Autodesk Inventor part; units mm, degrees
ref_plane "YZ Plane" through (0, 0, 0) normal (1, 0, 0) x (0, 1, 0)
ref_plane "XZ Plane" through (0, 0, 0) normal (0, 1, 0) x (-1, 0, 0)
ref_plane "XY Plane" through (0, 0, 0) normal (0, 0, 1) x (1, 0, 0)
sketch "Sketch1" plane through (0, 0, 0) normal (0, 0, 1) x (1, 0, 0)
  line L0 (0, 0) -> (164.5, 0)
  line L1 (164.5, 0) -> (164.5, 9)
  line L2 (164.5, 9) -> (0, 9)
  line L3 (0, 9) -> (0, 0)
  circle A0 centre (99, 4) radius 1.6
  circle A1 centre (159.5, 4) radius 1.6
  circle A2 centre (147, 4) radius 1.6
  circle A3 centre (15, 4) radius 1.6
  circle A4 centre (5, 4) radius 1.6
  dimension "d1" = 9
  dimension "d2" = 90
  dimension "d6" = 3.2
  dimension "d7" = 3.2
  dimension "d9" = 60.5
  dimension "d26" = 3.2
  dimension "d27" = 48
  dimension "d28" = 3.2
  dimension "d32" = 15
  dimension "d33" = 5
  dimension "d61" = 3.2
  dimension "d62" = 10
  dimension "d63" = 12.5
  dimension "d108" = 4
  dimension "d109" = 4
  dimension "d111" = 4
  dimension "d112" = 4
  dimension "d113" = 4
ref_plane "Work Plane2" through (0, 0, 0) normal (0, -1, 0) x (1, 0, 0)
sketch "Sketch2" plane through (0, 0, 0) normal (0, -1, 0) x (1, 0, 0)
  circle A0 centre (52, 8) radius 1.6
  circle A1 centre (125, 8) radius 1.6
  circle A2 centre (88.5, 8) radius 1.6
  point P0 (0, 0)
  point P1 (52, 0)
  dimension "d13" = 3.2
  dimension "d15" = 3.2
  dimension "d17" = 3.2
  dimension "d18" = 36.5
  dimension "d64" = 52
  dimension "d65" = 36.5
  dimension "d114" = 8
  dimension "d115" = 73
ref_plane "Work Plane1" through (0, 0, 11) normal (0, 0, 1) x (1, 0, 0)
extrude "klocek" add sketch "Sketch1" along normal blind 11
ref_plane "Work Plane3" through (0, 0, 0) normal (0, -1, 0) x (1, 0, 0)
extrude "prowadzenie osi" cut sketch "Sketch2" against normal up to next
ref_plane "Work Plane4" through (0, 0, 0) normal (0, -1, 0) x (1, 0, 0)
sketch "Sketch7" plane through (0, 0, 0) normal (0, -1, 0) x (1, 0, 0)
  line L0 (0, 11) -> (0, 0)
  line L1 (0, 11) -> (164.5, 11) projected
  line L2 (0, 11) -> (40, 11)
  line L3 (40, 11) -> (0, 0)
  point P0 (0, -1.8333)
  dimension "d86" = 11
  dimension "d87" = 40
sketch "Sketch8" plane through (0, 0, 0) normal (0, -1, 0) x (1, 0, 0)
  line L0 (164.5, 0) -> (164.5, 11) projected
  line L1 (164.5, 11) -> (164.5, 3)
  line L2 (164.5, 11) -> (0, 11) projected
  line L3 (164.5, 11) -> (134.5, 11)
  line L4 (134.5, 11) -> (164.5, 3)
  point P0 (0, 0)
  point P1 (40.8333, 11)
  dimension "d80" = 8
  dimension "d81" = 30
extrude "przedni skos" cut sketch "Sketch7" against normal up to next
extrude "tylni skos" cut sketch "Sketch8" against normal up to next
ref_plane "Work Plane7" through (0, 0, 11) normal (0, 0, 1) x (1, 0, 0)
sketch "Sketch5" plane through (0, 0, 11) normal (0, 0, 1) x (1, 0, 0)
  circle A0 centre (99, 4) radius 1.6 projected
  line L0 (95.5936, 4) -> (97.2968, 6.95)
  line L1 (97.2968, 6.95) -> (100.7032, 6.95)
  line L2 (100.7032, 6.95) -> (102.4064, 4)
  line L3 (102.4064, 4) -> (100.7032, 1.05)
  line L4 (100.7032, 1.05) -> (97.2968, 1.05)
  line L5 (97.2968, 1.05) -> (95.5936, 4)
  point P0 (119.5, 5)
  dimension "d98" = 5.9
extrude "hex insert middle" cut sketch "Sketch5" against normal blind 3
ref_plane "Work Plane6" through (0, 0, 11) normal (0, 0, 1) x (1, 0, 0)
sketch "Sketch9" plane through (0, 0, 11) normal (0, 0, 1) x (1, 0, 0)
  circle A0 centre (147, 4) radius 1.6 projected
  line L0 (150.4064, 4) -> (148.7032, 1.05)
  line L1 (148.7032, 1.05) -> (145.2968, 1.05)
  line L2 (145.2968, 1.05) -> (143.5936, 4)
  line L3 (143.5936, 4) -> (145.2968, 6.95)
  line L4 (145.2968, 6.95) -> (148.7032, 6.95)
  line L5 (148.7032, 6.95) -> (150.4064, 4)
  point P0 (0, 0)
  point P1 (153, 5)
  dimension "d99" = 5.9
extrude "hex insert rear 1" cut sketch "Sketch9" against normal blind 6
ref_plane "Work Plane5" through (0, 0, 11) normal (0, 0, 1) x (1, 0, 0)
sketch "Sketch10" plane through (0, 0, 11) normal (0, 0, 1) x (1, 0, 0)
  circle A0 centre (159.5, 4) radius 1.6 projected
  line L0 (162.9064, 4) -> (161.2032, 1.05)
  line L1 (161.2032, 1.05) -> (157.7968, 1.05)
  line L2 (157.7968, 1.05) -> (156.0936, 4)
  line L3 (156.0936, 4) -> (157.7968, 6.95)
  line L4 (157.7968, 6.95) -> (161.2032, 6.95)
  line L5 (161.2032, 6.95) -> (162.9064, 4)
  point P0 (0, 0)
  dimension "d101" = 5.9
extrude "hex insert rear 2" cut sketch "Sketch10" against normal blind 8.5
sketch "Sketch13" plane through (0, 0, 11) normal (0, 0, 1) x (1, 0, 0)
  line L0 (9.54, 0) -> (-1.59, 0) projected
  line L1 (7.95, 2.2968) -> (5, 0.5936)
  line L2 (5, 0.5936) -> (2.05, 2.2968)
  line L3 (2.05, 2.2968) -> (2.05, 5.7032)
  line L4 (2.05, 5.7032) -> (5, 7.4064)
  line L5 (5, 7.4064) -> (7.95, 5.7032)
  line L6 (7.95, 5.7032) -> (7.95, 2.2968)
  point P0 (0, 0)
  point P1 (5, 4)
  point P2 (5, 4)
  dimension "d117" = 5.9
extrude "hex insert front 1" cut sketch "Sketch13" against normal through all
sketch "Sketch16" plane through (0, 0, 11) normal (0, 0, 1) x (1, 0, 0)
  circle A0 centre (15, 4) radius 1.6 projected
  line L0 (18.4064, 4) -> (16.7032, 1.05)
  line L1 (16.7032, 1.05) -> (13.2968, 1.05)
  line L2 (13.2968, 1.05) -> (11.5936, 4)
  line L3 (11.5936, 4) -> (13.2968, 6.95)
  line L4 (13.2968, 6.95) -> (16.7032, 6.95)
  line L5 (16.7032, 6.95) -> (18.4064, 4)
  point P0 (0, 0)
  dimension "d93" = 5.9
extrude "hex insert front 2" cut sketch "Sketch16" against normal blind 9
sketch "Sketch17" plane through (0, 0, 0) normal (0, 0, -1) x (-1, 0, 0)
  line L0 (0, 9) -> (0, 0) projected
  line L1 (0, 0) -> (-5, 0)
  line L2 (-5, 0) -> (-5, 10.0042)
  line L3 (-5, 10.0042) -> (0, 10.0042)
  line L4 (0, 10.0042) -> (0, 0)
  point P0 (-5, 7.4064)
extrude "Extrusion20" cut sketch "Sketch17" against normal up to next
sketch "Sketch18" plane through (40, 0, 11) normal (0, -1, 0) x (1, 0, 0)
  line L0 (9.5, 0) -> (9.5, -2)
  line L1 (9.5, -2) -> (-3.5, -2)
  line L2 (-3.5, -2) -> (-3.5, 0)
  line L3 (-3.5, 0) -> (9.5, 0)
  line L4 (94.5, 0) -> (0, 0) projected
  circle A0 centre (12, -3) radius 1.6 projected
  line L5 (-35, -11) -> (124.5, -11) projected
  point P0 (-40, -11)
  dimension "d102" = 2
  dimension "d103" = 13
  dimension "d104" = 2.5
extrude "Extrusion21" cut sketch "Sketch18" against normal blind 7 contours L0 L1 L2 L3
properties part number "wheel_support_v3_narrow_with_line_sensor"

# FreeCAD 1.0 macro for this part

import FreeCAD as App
import Part
import Sketcher
Q = App.Units.Quantity


def add_polygon(sketch, points):
    """Adds a closed chain of lines whose ends are joined by coincident constraints."""
    first, n = sketch.GeometryCount, len(points)
    for a, b in zip(points, points[1:] + points[:1]):
        sketch.addGeometry(Part.LineSegment(App.Vector(*a, 0), App.Vector(*b, 0)), False)
    for i in range(n):
        sketch.addConstraint(Sketcher.Constraint("Coincident", first + i, 2, first + (i + 1) % n, 1))

doc = App.newDocument("Part")
params = doc.addObject("Spreadsheet::Sheet", "Params")
for row, (alias, value) in enumerate([
    ("sketch1_diameter", "3.2 mm"),
    ("sketch1_height", "9 mm"),
    ("sketch1_width", "164.5 mm"),
    ("pad1_length", "11 mm"),
    ("sketch2_diameter", "3.2 mm"),
    ("sketch3_width", "40 mm"),
    ("sketch3_height", "11 mm"),
    ("sketch4_width", "30 mm"),
    ("sketch4_height", "8 mm"),
    ("sketch5_diameter", "3.2 mm"),
    ("pocket4_length", "3 mm"),
    ("sketch6_diameter", "3.2 mm"),
    ("pocket5_length", "6 mm"),
    ("sketch7_diameter", "3.2 mm"),
    ("pocket6_length", "8.5 mm"),
    ("sketch9_diameter", "3.2 mm"),
    ("pocket8_length", "9 mm"),
    ("sketch10_width", "5 mm"),
    ("pocket9_length", "1.375 mm"),
    ("sketch11_width", "13 mm"),
    ("sketch11_height", "2 mm"),
    ("pocket10_length", "7 mm"),
], start=1):
    params.set(f"A{row}", alias)
    params.set(f"B{row}", "=" + value)
    params.setAlias(f"B{row}", alias)

body = doc.addObject("PartDesign::Body", "Body")

sketch1 = body.newObject("Sketcher::SketchObject", "Sketch")
sketch1.AttachmentSupport = (doc.getObject("XY_Plane"), [""])
sketch1.MapMode = "FlatFace"
add_polygon(sketch1, [(0, 9), (0, 0), (164.5, 0), (164.5, 9)])
sketch1.addGeometry(Part.Circle(App.Vector(5, 4, 0), App.Vector(0, 0, 1), 1.6), False)
sketch1.addGeometry(Part.Circle(App.Vector(15, 4, 0), App.Vector(0, 0, 1), 1.6), False)
sketch1.addGeometry(Part.Circle(App.Vector(99, 4, 0), App.Vector(0, 0, 1), 1.6), False)
sketch1.addGeometry(Part.Circle(App.Vector(147, 4, 0), App.Vector(0, 0, 1), 1.6), False)
sketch1.addGeometry(Part.Circle(App.Vector(159.5, 4, 0), App.Vector(0, 0, 1), 1.6), False)
sketch1.addConstraint([
    Sketcher.Constraint("Vertical", 0),
    Sketcher.Constraint("Horizontal", 1),
    Sketcher.Constraint("Vertical", 2),
    Sketcher.Constraint("Horizontal", 3),
    Sketcher.Constraint("Coincident", 0, 2, -1, 1),
    Sketcher.Constraint("Equal", 4, 5),
    Sketcher.Constraint("Equal", 5, 6),
    Sketcher.Constraint("Equal", 6, 7),
    Sketcher.Constraint("Equal", 7, 8),
    Sketcher.Constraint("Horizontal", 4, 3, 5, 3),
    Sketcher.Constraint("Horizontal", 5, 3, 6, 3),
    Sketcher.Constraint("Horizontal", 6, 3, 7, 3),
    Sketcher.Constraint("Horizontal", 7, 3, 8, 3),
    Sketcher.Constraint("Diameter", 4, 3.2),
    Sketcher.Constraint("DistanceY", 0, 2, 0, 1, 9.0),
    Sketcher.Constraint("DistanceX", -1, 1, 4, 3, 5.0),
    Sketcher.Constraint("DistanceY", -1, 1, 4, 3, 4.0),
    Sketcher.Constraint("DistanceX", -1, 1, 5, 3, 15.0),
    Sketcher.Constraint("DistanceX", 6, 3, 7, 3, 48.0),
    Sketcher.Constraint("DistanceX", 8, 3, 1, 2, 5.0),
    Sketcher.Constraint("DistanceX", 7, 3, 8, 3, 12.5),
    Sketcher.Constraint("DistanceX", 1, 1, 1, 2, 164.5),
])
sketch1.setExpression("Constraints[17]", "Params.sketch1_diameter")
sketch1.setExpression("Constraints[18]", "Params.sketch1_height")
sketch1.setExpression("Constraints[25]", "Params.sketch1_width")
pad1 = body.newObject("PartDesign::Pad", "Pad")
pad1.Profile = sketch1
pad1.setExpression("Length", "Params.pad1_length")

sketch2 = body.newObject("Sketcher::SketchObject", "Sketch001")
sketch2.AttachmentSupport = (doc.getObject("XZ_Plane"), [""])
sketch2.MapMode = "FlatFace"
sketch2.addGeometry([
    Part.Circle(App.Vector(52, 8, 0), App.Vector(0, 0, 1), 1.6),
    Part.Circle(App.Vector(125, 8, 0), App.Vector(0, 0, 1), 1.6),
    Part.Circle(App.Vector(88.5, 8, 0), App.Vector(0, 0, 1), 1.6),
], False)
sketch2.addConstraint([
    Sketcher.Constraint("Equal", 0, 1),
    Sketcher.Constraint("Equal", 1, 2),
    Sketcher.Constraint("Horizontal", 0, 3, 1, 3),
    Sketcher.Constraint("Horizontal", 1, 3, 2, 3),
    Sketcher.Constraint("Diameter", 0, 3.2),
    Sketcher.Constraint("DistanceX", -1, 1, 0, 3, 52.0),
    Sketcher.Constraint("DistanceY", -1, 1, 0, 3, 8.0),
    Sketcher.Constraint("DistanceX", 0, 3, 1, 3, 73.0),
    Sketcher.Constraint("DistanceX", 0, 3, 2, 3, 36.5),
])
sketch2.setExpression("Constraints[4]", "Params.sketch2_diameter")
pocket1 = body.newObject("PartDesign::Pocket", "Pocket")
pocket1.Profile = sketch2
pocket1.Type = "UpToFirst"

sketch3 = body.newObject("Sketcher::SketchObject", "Sketch002")
sketch3.AttachmentSupport = (doc.getObject("XZ_Plane"), [""])
sketch3.MapMode = "FlatFace"
add_polygon(sketch3, [(40, 11), (0, 11), (0, 0)])
sketch3.addConstraint([
    Sketcher.Constraint("Horizontal", 0),
    Sketcher.Constraint("Vertical", 1),
    Sketcher.Constraint("Coincident", 1, 2, -1, 1),
    Sketcher.Constraint("DistanceX", 0, 2, 0, 1, 40.0),
    Sketcher.Constraint("DistanceY", 1, 2, 1, 1, 11.0),
])
sketch3.setExpression("Constraints[6]", "Params.sketch3_width")
sketch3.setExpression("Constraints[7]", "Params.sketch3_height")
pocket2 = body.newObject("PartDesign::Pocket", "Pocket001")
pocket2.Profile = sketch3
pocket2.Type = "UpToFirst"

sketch4 = body.newObject("Sketcher::SketchObject", "Sketch003")
sketch4.AttachmentSupport = (doc.getObject("XZ_Plane"), [""])
sketch4.MapMode = "FlatFace"
add_polygon(sketch4, [(134.5, 11), (164.5, 3), (164.5, 11)])
sketch4.addConstraint([
    Sketcher.Constraint("Vertical", 1),
    Sketcher.Constraint("Horizontal", 2),
    Sketcher.Constraint("DistanceX", 2, 2, 2, 1, 30.0),
    Sketcher.Constraint("DistanceY", 1, 1, 1, 2, 8.0),
    Sketcher.Constraint("DistanceY", -1, 1, 0, 2, 3.0),
    Sketcher.Constraint("DistanceX", -1, 1, 0, 2, 164.5),
])
sketch4.setExpression("Constraints[5]", "Params.sketch4_width")
sketch4.setExpression("Constraints[6]", "Params.sketch4_height")
pocket3 = body.newObject("PartDesign::Pocket", "Pocket002")
pocket3.Profile = sketch4
pocket3.Type = "UpToFirst"

sketch5 = body.newObject("Sketcher::SketchObject", "Sketch004")
sketch5.AttachmentSupport = (doc.getObject("XY_Plane"), [""])
sketch5.MapMode = "FlatFace"
sketch5.AttachmentOffset = App.Placement(App.Vector(0, 0, 11), App.Rotation())
add_polygon(sketch5, [(97.2968, 6.95), (95.5936, 4), (97.2968, 1.05), (100.7032, 1.05), (102.4064, 4), (100.7032, 6.95)])
sketch5.addGeometry(Part.Circle(App.Vector(99, 4, 0), App.Vector(0, 0, 1), 1.6), False)
sketch5.addConstraint([
    Sketcher.Constraint("Horizontal", 2),
    Sketcher.Constraint("Horizontal", 5),
    Sketcher.Constraint("Parallel", 0, 3),
    Sketcher.Constraint("Parallel", 1, 4),
    Sketcher.Constraint("Horizontal", 6, 3, 0, 2),
    Sketcher.Constraint("Horizontal", 0, 2, 3, 2),
    Sketcher.Constraint("Vertical", 2, 2, 4, 2),
    Sketcher.Constraint("Vertical", 1, 2, 5, 2),
    Sketcher.Constraint("Diameter", 6, 3.2),
    Sketcher.Constraint("DistanceY", 2, 2, 4, 2, 5.9),
    Sketcher.Constraint("Angle", 0, Q("-120.0002 deg")),
    Sketcher.Constraint("DistanceX", -1, 1, 6, 3, 99.0),
    Sketcher.Constraint("DistanceY", -1, 1, 6, 3, 4.0),
    Sketcher.Constraint("DistanceX", 2, 1, 2, 2, 3.4064),
    Sketcher.Constraint("DistanceX", -1, 1, 0, 2, 95.5936),
])
sketch5.setExpression("Constraints[14]", "Params.sketch5_diameter")
pocket4 = body.newObject("PartDesign::Pocket", "Pocket003")
pocket4.Profile = sketch5
pocket4.setExpression("Length", "Params.pocket4_length")

sketch6 = body.newObject("Sketcher::SketchObject", "Sketch005")
sketch6.AttachmentSupport = (doc.getObject("XY_Plane"), [""])
sketch6.MapMode = "FlatFace"
sketch6.AttachmentOffset = App.Placement(App.Vector(0, 0, 11), App.Rotation())
add_polygon(sketch6, [(148.7032, 1.05), (150.4064, 4), (148.7032, 6.95), (145.2968, 6.95), (143.5936, 4), (145.2968, 1.05)])
sketch6.addGeometry(Part.Circle(App.Vector(147, 4, 0), App.Vector(0, 0, 1), 1.6), False)
sketch6.addConstraint([
    Sketcher.Constraint("Horizontal", 2),
    Sketcher.Constraint("Horizontal", 5),
    Sketcher.Constraint("Parallel", 0, 3),
    Sketcher.Constraint("Parallel", 1, 4),
    Sketcher.Constraint("Horizontal", 6, 3, 0, 2),
    Sketcher.Constraint("Horizontal", 0, 2, 3, 2),
    Sketcher.Constraint("Vertical", 2, 2, 4, 2),
    Sketcher.Constraint("Vertical", 1, 2, 5, 2),
    Sketcher.Constraint("Diameter", 6, 3.2),
    Sketcher.Constraint("DistanceY", 4, 2, 2, 2, 5.9),
    Sketcher.Constraint("Angle", 0, Q("59.9998 deg")),
    Sketcher.Constraint("DistanceX", -1, 1, 6, 3, 147.0),
    Sketcher.Constraint("DistanceY", -1, 1, 6, 3, 4.0),
    Sketcher.Constraint("DistanceX", 2, 2, 2, 1, 3.4064),
    Sketcher.Constraint("DistanceX", -1, 1, 0, 2, 150.4064),
])
sketch6.setExpression("Constraints[14]", "Params.sketch6_diameter")
pocket5 = body.newObject("PartDesign::Pocket", "Pocket004")
pocket5.Profile = sketch6
pocket5.setExpression("Length", "Params.pocket5_length")

sketch7 = body.newObject("Sketcher::SketchObject", "Sketch006")
sketch7.AttachmentSupport = (doc.getObject("XY_Plane"), [""])
sketch7.MapMode = "FlatFace"
sketch7.AttachmentOffset = App.Placement(App.Vector(0, 0, 11), App.Rotation())
add_polygon(sketch7, [(161.2032, 1.05), (162.9064, 4), (161.2032, 6.95), (157.7968, 6.95), (156.0936, 4), (157.7968, 1.05)])
sketch7.addGeometry(Part.Circle(App.Vector(159.5, 4, 0), App.Vector(0, 0, 1), 1.6), False)
sketch7.addConstraint([
    Sketcher.Constraint("Horizontal", 2),
    Sketcher.Constraint("Horizontal", 5),
    Sketcher.Constraint("Parallel", 0, 3),
    Sketcher.Constraint("Parallel", 1, 4),
    Sketcher.Constraint("Horizontal", 6, 3, 0, 2),
    Sketcher.Constraint("Horizontal", 0, 2, 3, 2),
    Sketcher.Constraint("Vertical", 2, 2, 4, 2),
    Sketcher.Constraint("Vertical", 1, 2, 5, 2),
    Sketcher.Constraint("Diameter", 6, 3.2),
    Sketcher.Constraint("DistanceY", 4, 2, 2, 2, 5.9),
    Sketcher.Constraint("Angle", 0, Q("59.9998 deg")),
    Sketcher.Constraint("DistanceY", -1, 1, 6, 3, 4.0),
    Sketcher.Constraint("DistanceX", -1, 1, 6, 3, 159.5),
    Sketcher.Constraint("DistanceX", 2, 2, 2, 1, 3.4064),
    Sketcher.Constraint("DistanceX", -1, 1, 0, 2, 162.9064),
])
sketch7.setExpression("Constraints[14]", "Params.sketch7_diameter")
pocket6 = body.newObject("PartDesign::Pocket", "Pocket005")
pocket6.Profile = sketch7
pocket6.setExpression("Length", "Params.pocket6_length")

sketch8 = body.newObject("Sketcher::SketchObject", "Sketch007")
sketch8.AttachmentSupport = (doc.getObject("XY_Plane"), [""])
sketch8.MapMode = "FlatFace"
sketch8.AttachmentOffset = App.Placement(App.Vector(0, 0, 11), App.Rotation())
add_polygon(sketch8, [(5, 0.5936), (7.95, 2.2968), (7.95, 5.7032), (5, 7.4064), (2.05, 5.7032), (2.05, 2.2968)])
sketch8.addConstraint([
    Sketcher.Constraint("Vertical", 1),
    Sketcher.Constraint("Vertical", 4),
    Sketcher.Constraint("Parallel", 0, 3),
    Sketcher.Constraint("Parallel", 2, 5),
    Sketcher.Constraint("Horizontal", 1, 2, 3, 2),
    Sketcher.Constraint("Horizontal", 0, 2, 4, 2),
    Sketcher.Constraint("Vertical", 2, 2, 5, 2),
    Sketcher.Constraint("DistanceX", 3, 2, 1, 2, 5.9),
    Sketcher.Constraint("Angle", 0, Q("30.0002 deg")),
    Sketcher.Constraint("DistanceX", -1, 1, 2, 2, 5.0),
    Sketcher.Constraint("DistanceY", 1, 1, 1, 2, 3.4064),
    Sketcher.Constraint("DistanceY", -1, 1, 0, 2, 2.2968),
])
pocket7 = body.newObject("PartDesign::Pocket", "Pocket006")
pocket7.Profile = sketch8
pocket7.Type = "ThroughAll"

sketch9 = body.newObject("Sketcher::SketchObject", "Sketch008")
sketch9.AttachmentSupport = (doc.getObject("XY_Plane"), [""])
sketch9.MapMode = "FlatFace"
sketch9.AttachmentOffset = App.Placement(App.Vector(0, 0, 11), App.Rotation())
add_polygon(sketch9, [(16.7032, 1.05), (18.4064, 4), (16.7032, 6.95), (13.2968, 6.95), (11.5936, 4), (13.2968, 1.05)])
sketch9.addGeometry(Part.Circle(App.Vector(15, 4, 0), App.Vector(0, 0, 1), 1.6), False)
sketch9.addConstraint([
    Sketcher.Constraint("Horizontal", 2),
    Sketcher.Constraint("Horizontal", 5),
    Sketcher.Constraint("Parallel", 0, 3),
    Sketcher.Constraint("Parallel", 1, 4),
    Sketcher.Constraint("Horizontal", 6, 3, 0, 2),
    Sketcher.Constraint("Horizontal", 0, 2, 3, 2),
    Sketcher.Constraint("Vertical", 2, 2, 4, 2),
    Sketcher.Constraint("Vertical", 1, 2, 5, 2),
    Sketcher.Constraint("Diameter", 6, 3.2),
    Sketcher.Constraint("DistanceY", 4, 2, 2, 2, 5.9),
    Sketcher.Constraint("Angle", 0, Q("59.9998 deg")),
    Sketcher.Constraint("DistanceX", -1, 1, 6, 3, 15.0),
    Sketcher.Constraint("DistanceY", -1, 1, 6, 3, 4.0),
    Sketcher.Constraint("DistanceX", 2, 2, 2, 1, 3.4064),
    Sketcher.Constraint("DistanceX", -1, 1, 0, 2, 18.4064),
])
sketch9.setExpression("Constraints[14]", "Params.sketch9_diameter")
pocket8 = body.newObject("PartDesign::Pocket", "Pocket007")
pocket8.Profile = sketch9
pocket8.setExpression("Length", "Params.pocket8_length")

sketch10 = body.newObject("Sketcher::SketchObject", "Sketch009")
sketch10.AttachmentSupport = (doc.getObject("XY_Plane"), [""])
sketch10.MapMode = "FlatFace"
add_polygon(sketch10, [(0, 0), (0, 10.0042), (5, 10.0042), (5, 0)])
sketch10.addConstraint([
    Sketcher.Constraint("Vertical", 0),
    Sketcher.Constraint("Horizontal", 1),
    Sketcher.Constraint("Vertical", 2),
    Sketcher.Constraint("Horizontal", 3),
    Sketcher.Constraint("Coincident", 3, 2, -1, 1),
    Sketcher.Constraint("DistanceX", 1, 1, 1, 2, 5.0),
    Sketcher.Constraint("DistanceY", 0, 1, 0, 2, 10.0042),
])
sketch10.setExpression("Constraints[9]", "Params.sketch10_width")
pocket9 = body.newObject("PartDesign::Pocket", "Pocket008")
pocket9.Profile = sketch10
pocket9.setExpression("Length", "Params.pocket9_length")
pocket9.Reversed = True

sketch11 = body.newObject("Sketcher::SketchObject", "Sketch010")
sketch11.AttachmentSupport = (doc.getObject("XZ_Plane"), [""])
sketch11.MapMode = "FlatFace"
add_polygon(sketch11, [(49.5, 9), (49.5, 11), (36.5, 11), (36.5, 9)])
sketch11.addConstraint([
    Sketcher.Constraint("Vertical", 0),
    Sketcher.Constraint("Horizontal", 1),
    Sketcher.Constraint("Vertical", 2),
    Sketcher.Constraint("Horizontal", 3),
    Sketcher.Constraint("DistanceX", 1, 2, 1, 1, 13.0),
    Sketcher.Constraint("DistanceY", 0, 1, 0, 2, 2.0),
    Sketcher.Constraint("DistanceY", -1, 1, 0, 2, 11.0),
    Sketcher.Constraint("DistanceX", -1, 1, 0, 2, 49.5),
])
sketch11.setExpression("Constraints[8]", "Params.sketch11_width")
sketch11.setExpression("Constraints[9]", "Params.sketch11_height")
pocket10 = body.newObject("PartDesign::Pocket", "Pocket009")
pocket10.Profile = sketch11
pocket10.setExpression("Length", "Params.pocket10_length")

doc.recompute()
